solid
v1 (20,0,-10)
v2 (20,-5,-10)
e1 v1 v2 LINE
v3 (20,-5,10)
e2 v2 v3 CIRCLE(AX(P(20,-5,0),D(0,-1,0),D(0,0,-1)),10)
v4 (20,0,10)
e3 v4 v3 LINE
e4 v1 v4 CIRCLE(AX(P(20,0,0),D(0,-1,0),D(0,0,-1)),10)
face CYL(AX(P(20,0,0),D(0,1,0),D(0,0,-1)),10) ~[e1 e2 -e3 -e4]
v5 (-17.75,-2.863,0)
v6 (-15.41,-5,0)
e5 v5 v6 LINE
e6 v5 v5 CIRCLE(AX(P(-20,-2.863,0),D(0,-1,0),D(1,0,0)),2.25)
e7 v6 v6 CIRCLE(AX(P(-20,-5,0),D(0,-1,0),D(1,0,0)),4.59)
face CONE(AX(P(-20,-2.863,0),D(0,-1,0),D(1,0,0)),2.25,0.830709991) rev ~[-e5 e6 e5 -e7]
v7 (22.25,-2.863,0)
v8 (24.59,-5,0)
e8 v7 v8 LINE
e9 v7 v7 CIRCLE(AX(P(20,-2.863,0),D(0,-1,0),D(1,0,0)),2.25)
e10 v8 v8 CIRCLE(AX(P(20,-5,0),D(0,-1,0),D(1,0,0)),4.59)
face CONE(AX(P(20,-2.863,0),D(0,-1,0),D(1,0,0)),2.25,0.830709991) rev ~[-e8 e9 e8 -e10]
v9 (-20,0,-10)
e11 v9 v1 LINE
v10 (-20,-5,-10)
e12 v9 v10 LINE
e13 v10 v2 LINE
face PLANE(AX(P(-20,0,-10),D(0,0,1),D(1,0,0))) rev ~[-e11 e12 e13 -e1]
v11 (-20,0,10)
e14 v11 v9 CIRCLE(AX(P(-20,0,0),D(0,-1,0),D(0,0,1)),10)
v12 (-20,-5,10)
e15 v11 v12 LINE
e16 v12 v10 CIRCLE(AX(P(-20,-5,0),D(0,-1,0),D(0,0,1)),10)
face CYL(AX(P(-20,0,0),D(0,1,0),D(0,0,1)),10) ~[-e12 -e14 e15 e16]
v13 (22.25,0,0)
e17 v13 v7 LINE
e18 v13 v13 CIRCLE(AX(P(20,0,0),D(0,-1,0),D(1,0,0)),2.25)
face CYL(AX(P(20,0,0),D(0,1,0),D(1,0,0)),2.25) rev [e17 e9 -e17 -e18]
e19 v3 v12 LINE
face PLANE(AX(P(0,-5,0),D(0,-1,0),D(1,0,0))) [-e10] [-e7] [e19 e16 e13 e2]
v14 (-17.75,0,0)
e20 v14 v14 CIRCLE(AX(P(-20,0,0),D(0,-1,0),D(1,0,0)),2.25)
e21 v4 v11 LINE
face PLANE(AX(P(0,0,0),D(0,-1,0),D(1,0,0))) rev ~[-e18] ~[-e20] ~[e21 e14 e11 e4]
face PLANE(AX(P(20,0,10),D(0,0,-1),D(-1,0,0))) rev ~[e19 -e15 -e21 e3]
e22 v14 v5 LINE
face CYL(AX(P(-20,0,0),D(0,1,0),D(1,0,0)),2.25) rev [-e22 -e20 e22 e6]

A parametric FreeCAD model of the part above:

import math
import FreeCAD as App
import Part
import Sketcher


def edges_at(feature, points):
    """Names of the edges that pass closest to the given points."""
    edges = feature.Shape.Edges
    near = lambda p: min(range(len(edges)), key=lambda i: edges[i].distToShape(Part.Vertex(*p))[0])
    return sorted({f"Edge{near(p) + 1}" for p in points})

doc = App.newDocument("Part")
body = doc.addObject("PartDesign::Body", "Body")

# Sketch on XZ plane
sketch1 = body.newObject("Sketcher::SketchObject", "Sketch")
sketch1.AttachmentSupport = (doc.getObject("XZ_Plane"), [""])
sketch1.MapMode = "FlatFace"
sketch1.addGeometry([
    Part.LineSegment(App.Vector(20, 10, 0), App.Vector(-20, 10, 0)),  # 0
    Part.ArcOfCircle(Part.Circle(App.Vector(-20, 0, 0), App.Vector(0, 0, 1), 10), math.radians(90), math.radians(270)),  # 1
    Part.LineSegment(App.Vector(-20, -10, 0), App.Vector(20, -10, 0)),  # 2
    Part.ArcOfCircle(Part.Circle(App.Vector(20, 0, 0), App.Vector(0, 0, 1), 10), math.radians(-90), math.radians(90)),  # 3
    Part.Circle(App.Vector(-20, 0, 0), App.Vector(0, 0, 1), 2.25),  # 4
    Part.Circle(App.Vector(20, 0, 0), App.Vector(0, 0, 1), 2.25),  # 5
], False)
sketch1.addConstraint([
    Sketcher.Constraint("Tangent", 0, 2, 1, 1),
    Sketcher.Constraint("Tangent", 1, 2, 2, 1),
    Sketcher.Constraint("Tangent", 2, 2, 3, 1),
    Sketcher.Constraint("Tangent", 3, 2, 0, 1),
    Sketcher.Constraint("Horizontal", 0),
    Sketcher.Constraint("Horizontal", 2),
    Sketcher.Constraint("Coincident", 4, 3, 1, 3),
    Sketcher.Constraint("Coincident", 5, 3, 3, 3),
    Sketcher.Constraint("Equal", 4, 5),
    Sketcher.Constraint("Symmetric", 1, 3, 3, 3, -1, 1),
    Sketcher.Constraint("Radius", 1, 10.0),
    Sketcher.Constraint("Diameter", 4, 4.5),
    Sketcher.Constraint("DistanceX", 0, 2, 0, 1, 40.0),
])
pad1 = body.newObject("PartDesign::Pad", "Pad")
pad1.Profile = sketch1
pad1.Length = 5
doc.recompute()

chamfer = body.newObject("PartDesign::Chamfer", "Chamfer")
chamfer.Base = (pad1, edges_at(pad1, [(17.75, -5, 0), (-22.25, -5, 0)]))
chamfer.ChamferType = "Two distances"
chamfer.Size = 2.137
chamfer.Size2 = 2.34

doc.recompute()
